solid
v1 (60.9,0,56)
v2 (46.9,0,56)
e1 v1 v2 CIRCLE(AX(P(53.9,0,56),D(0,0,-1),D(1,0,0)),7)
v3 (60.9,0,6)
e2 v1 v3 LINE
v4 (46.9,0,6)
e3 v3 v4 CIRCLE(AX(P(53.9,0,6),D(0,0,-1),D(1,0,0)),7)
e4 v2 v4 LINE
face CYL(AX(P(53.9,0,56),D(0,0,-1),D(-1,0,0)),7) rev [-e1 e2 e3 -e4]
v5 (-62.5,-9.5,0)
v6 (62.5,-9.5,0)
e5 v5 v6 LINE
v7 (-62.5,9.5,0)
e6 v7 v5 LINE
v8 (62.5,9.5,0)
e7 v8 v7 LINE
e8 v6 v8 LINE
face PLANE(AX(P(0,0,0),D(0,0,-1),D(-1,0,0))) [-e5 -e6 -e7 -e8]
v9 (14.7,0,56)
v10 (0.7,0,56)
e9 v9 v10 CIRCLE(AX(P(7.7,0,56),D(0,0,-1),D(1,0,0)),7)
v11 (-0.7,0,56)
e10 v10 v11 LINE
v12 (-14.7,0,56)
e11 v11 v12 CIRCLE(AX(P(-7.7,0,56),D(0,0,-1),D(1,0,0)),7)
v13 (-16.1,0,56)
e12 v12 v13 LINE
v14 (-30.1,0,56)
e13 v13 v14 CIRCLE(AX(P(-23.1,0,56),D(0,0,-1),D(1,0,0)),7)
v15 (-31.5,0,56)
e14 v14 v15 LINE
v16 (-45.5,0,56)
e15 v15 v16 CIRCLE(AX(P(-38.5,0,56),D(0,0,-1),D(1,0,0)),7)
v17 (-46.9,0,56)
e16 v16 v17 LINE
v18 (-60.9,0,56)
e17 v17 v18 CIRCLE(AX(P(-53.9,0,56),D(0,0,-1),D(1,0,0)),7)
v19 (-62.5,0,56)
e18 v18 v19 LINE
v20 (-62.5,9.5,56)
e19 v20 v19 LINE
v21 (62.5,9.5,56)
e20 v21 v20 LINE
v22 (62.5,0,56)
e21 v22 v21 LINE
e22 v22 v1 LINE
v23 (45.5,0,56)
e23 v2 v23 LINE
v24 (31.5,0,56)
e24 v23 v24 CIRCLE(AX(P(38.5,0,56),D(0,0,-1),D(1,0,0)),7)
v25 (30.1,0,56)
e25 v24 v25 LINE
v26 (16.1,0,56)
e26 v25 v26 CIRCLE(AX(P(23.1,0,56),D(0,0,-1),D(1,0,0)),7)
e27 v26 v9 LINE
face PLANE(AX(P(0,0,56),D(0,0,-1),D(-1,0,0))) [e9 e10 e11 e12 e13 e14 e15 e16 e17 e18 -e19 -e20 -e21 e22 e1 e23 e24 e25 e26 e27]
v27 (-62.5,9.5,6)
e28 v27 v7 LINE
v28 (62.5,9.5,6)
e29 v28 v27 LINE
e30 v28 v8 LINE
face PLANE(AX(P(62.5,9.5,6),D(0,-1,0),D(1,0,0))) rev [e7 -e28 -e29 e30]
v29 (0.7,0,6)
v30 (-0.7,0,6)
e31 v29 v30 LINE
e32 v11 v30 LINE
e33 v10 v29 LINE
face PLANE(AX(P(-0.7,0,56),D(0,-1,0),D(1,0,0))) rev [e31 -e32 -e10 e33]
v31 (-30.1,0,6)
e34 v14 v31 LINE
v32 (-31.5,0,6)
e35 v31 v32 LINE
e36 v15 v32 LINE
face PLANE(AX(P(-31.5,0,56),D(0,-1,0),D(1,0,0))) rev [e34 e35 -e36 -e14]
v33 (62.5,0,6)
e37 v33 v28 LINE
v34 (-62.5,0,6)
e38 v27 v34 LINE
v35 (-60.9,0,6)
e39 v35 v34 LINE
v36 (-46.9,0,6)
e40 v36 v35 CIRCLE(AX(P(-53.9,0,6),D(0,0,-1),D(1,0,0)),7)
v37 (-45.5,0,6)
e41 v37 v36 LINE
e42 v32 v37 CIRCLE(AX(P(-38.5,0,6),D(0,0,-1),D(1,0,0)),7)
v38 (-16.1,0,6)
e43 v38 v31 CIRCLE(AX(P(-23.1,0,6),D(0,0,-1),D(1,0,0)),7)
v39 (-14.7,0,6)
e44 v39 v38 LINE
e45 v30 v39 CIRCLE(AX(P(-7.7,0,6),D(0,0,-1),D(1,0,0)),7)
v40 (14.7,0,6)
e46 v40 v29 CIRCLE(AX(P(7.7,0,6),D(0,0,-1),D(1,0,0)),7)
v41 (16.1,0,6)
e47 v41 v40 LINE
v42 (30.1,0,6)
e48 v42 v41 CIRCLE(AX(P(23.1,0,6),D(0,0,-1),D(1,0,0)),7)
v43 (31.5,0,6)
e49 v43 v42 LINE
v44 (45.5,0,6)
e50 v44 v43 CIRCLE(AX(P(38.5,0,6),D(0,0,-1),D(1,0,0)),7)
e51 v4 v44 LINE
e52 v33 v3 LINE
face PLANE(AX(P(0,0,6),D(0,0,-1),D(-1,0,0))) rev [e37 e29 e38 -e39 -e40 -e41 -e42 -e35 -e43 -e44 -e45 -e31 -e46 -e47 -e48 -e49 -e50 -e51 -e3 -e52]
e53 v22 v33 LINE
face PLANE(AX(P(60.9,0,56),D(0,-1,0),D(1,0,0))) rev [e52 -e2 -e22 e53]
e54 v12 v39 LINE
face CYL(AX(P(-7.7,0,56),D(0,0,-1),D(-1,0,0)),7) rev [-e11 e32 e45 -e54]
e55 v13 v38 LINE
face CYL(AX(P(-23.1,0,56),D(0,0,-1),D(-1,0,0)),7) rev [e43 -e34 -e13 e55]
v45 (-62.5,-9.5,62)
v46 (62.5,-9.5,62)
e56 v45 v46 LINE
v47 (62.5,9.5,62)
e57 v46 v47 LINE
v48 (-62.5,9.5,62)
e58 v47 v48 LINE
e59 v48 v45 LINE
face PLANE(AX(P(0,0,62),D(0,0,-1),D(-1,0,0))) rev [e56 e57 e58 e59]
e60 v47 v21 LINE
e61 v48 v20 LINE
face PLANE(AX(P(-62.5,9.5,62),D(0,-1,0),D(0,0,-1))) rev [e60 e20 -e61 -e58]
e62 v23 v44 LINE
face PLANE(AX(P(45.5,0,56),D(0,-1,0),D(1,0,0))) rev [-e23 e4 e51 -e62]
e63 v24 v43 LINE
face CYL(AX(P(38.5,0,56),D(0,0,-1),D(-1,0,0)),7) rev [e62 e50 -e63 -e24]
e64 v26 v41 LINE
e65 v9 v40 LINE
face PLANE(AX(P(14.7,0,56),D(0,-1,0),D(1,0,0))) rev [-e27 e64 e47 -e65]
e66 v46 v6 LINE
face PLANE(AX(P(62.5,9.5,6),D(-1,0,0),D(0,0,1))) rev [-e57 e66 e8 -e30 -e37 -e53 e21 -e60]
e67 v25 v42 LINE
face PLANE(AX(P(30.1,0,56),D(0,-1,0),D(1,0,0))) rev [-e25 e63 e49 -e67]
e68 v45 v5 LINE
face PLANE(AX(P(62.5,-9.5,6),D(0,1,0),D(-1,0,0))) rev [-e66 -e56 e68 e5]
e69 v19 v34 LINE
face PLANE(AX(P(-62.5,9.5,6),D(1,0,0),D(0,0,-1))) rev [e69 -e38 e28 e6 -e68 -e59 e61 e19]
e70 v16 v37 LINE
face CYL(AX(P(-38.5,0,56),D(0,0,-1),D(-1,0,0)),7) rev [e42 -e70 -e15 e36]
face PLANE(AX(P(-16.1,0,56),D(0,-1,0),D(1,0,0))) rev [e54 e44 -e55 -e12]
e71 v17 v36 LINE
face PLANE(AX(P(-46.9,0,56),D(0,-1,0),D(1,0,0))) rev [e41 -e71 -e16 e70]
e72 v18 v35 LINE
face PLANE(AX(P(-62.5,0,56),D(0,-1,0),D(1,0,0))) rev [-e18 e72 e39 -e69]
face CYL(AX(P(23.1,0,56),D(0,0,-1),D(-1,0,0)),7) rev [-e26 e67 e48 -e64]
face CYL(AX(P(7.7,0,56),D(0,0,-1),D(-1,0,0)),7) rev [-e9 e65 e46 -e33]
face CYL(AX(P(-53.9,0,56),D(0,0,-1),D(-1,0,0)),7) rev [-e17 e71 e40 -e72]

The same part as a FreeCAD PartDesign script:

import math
import FreeCAD as App
import Part
import Sketcher


def add_polygon(sketch, points):
    """Adds a closed chain of lines whose ends are joined by coincident constraints."""
    first, n = sketch.GeometryCount, len(points)
    for a, b in zip(points, points[1:] + points[:1]):
        sketch.addGeometry(Part.LineSegment(App.Vector(*a, 0), App.Vector(*b, 0)), False)
    for i in range(n):
        sketch.addConstraint(Sketcher.Constraint("Coincident", first + i, 2, first + (i + 1) % n, 1))

doc = App.newDocument("Part")
body = doc.addObject("PartDesign::Body", "Body")

sketch1 = doc.addObject("Sketcher::SketchObject", "Sketch")
body.addObject(sketch1)
sketch1.AttachmentSupport = (doc.XY_Plane, [""])
sketch1.MapMode = "FlatFace"
add_polygon(sketch1, [(-62.5, 9.5), (-62.5, -9.5), (62.5, -9.5), (62.5, 9.5)])
sketch1.addConstraint(Sketcher.Constraint("Vertical", 0))
sketch1.addConstraint(Sketcher.Constraint("Horizontal", 1))
sketch1.addConstraint(Sketcher.Constraint("Vertical", 2))
sketch1.addConstraint(Sketcher.Constraint("Horizontal", 3))
sketch1.addConstraint(Sketcher.Constraint("Symmetric", 0, 2, 2, 2, -1, 1))
sketch1.addConstraint(Sketcher.Constraint("DistanceX", 1, 1, 1, 2, 125.0))
sketch1.addConstraint(Sketcher.Constraint("DistanceY", 0, 2, 0, 1, 19.0))
pad1 = doc.addObject("PartDesign::Pad", "Pad")
body.addObject(pad1)
pad1.Profile = sketch1
pad1.Length = 6

sketch2 = doc.addObject("Sketcher::SketchObject", "Sketch001")
body.addObject(sketch2)
sketch2.AttachmentSupport = (doc.XY_Plane, [""])
sketch2.MapMode = "FlatFace"
sketch2.AttachmentOffset = App.Placement(App.Vector(0, 0, 6), App.Rotation())
sketch2.addGeometry(Part.LineSegment(App.Vector(-60.9, 0, 0), App.Vector(-62.5, 0, 0)), False)
sketch2.addGeometry(Part.LineSegment(App.Vector(-62.5, 0, 0), App.Vector(-62.5, -9.5, 0)), False)
sketch2.addGeometry(Part.LineSegment(App.Vector(-62.5, -9.5, 0), App.Vector(62.5, -9.5, 0)), False)
sketch2.addGeometry(Part.LineSegment(App.Vector(62.5, -9.5, 0), App.Vector(62.5, 0, 0)), False)
sketch2.addGeometry(Part.LineSegment(App.Vector(62.5, 0, 0), App.Vector(60.9, 0, 0)), False)
sketch2.addGeometry(Part.ArcOfCircle(Part.Circle(App.Vector(53.9, 0, 0), App.Vector(0, 0, 1), 7), math.radians(180), math.radians(360)), False)
sketch2.addGeometry(Part.LineSegment(App.Vector(46.9, 0, 0), App.Vector(45.5, 0, 0)), False)
sketch2.addGeometry(Part.ArcOfCircle(Part.Circle(App.Vector(38.5, 0, 0), App.Vector(0, 0, 1), 7), math.radians(180), math.radians(360)), False)
sketch2.addGeometry(Part.LineSegment(App.Vector(31.5, 0, 0), App.Vector(30.1, 0, 0)), False)
sketch2.addGeometry(Part.ArcOfCircle(Part.Circle(App.Vector(23.1, 0, 0), App.Vector(0, 0, 1), 7), math.radians(180), math.radians(360)), False)
sketch2.addGeometry(Part.LineSegment(App.Vector(16.1, 0, 0), App.Vector(14.7, 0, 0)), False)
sketch2.addGeometry(Part.ArcOfCircle(Part.Circle(App.Vector(7.7, 0, 0), App.Vector(0, 0, 1), 7), math.radians(180), math.radians(360)), False)
sketch2.addGeometry(Part.LineSegment(App.Vector(0.7, 0, 0), App.Vector(-0.7, 0, 0)), False)
sketch2.addGeometry(Part.ArcOfCircle(Part.Circle(App.Vector(-7.7, 0, 0), App.Vector(0, 0, 1), 7), math.radians(180), math.radians(360)), False)
sketch2.addGeometry(Part.LineSegment(App.Vector(-14.7, 0, 0), App.Vector(-16.1, 0, 0)), False)
sketch2.addGeometry(Part.ArcOfCircle(Part.Circle(App.Vector(-23.1, 0, 0), App.Vector(0, 0, 1), 7), math.radians(180), math.radians(360)), False)
sketch2.addGeometry(Part.LineSegment(App.Vector(-30.1, 0, 0), App.Vector(-31.5, 0, 0)), False)
sketch2.addGeometry(Part.ArcOfCircle(Part.Circle(App.Vector(-38.5, 0, 0), App.Vector(0, 0, 1), 7), math.radians(180), math.radians(360)), False)
sketch2.addGeometry(Part.LineSegment(App.Vector(-45.5, 0, 0), App.Vector(-46.9, 0, 0)), False)
sketch2.addGeometry(Part.ArcOfCircle(Part.Circle(App.Vector(-53.9, 0, 0), App.Vector(0, 0, 1), 7), math.radians(180), math.radians(360)), False)
sketch2.addConstraint(Sketcher.Constraint("Coincident", 0, 2, 1, 1))
sketch2.addConstraint(Sketcher.Constraint("Coincident", 1, 2, 2, 1))
sketch2.addConstraint(Sketcher.Constraint("Coincident", 2, 2, 3, 1))
sketch2.addConstraint(Sketcher.Constraint("Coincident", 3, 2, 4, 1))
sketch2.addConstraint(Sketcher.Constraint("Coincident", 4, 2, 5, 2))
sketch2.addConstraint(Sketcher.Constraint("Coincident", 5, 1, 6, 1))
sketch2.addConstraint(Sketcher.Constraint("Coincident", 6, 2, 7, 2))
sketch2.addConstraint(Sketcher.Constraint("Coincident", 7, 1, 8, 1))
sketch2.addConstraint(Sketcher.Constraint("Coincident", 8, 2, 9, 2))
sketch2.addConstraint(Sketcher.Constraint("Coincident", 9, 1, 10, 1))
sketch2.addConstraint(Sketcher.Constraint("Coincident", 10, 2, 11, 2))
sketch2.addConstraint(Sketcher.Constraint("Coincident", 11, 1, 12, 1))
sketch2.addConstraint(Sketcher.Constraint("Coincident", 12, 2, 13, 2))
sketch2.addConstraint(Sketcher.Constraint("Coincident", 13, 1, 14, 1))
sketch2.addConstraint(Sketcher.Constraint("Coincident", 14, 2, 15, 2))
sketch2.addConstraint(Sketcher.Constraint("Coincident", 15, 1, 16, 1))
sketch2.addConstraint(Sketcher.Constraint("Coincident", 16, 2, 17, 2))
sketch2.addConstraint(Sketcher.Constraint("Coincident", 17, 1, 18, 1))
sketch2.addConstraint(Sketcher.Constraint("Coincident", 18, 2, 19, 2))
sketch2.addConstraint(Sketcher.Constraint("Coincident", 19, 1, 0, 1))
sketch2.addConstraint(Sketcher.Constraint("Horizontal", 0))
sketch2.addConstraint(Sketcher.Constraint("Vertical", 1))
sketch2.addConstraint(Sketcher.Constraint("Horizontal", 2))
sketch2.addConstraint(Sketcher.Constraint("Vertical", 3))
sketch2.addConstraint(Sketcher.Constraint("Horizontal", 4))
sketch2.addConstraint(Sketcher.Constraint("Horizontal", 6))
sketch2.addConstraint(Sketcher.Constraint("Horizontal", 8))
sketch2.addConstraint(Sketcher.Constraint("Horizontal", 10))
sketch2.addConstraint(Sketcher.Constraint("Horizontal", 12))
sketch2.addConstraint(Sketcher.Constraint("Horizontal", 14))
sketch2.addConstraint(Sketcher.Constraint("Horizontal", 16))
sketch2.addConstraint(Sketcher.Constraint("Horizontal", 18))
sketch2.addConstraint(Sketcher.Constraint("Equal", 5, 7))
sketch2.addConstraint(Sketcher.Constraint("Equal", 7, 9))
sketch2.addConstraint(Sketcher.Constraint("Equal", 9, 11))
sketch2.addConstraint(Sketcher.Constraint("Equal", 11, 13))
sketch2.addConstraint(Sketcher.Constraint("Equal", 13, 15))
sketch2.addConstraint(Sketcher.Constraint("Equal", 15, 17))
sketch2.addConstraint(Sketcher.Constraint("Equal", 17, 19))
sketch2.addConstraint(Sketcher.Constraint("Symmetric", 11, 3, 13, 3, -1, 1))
sketch2.addConstraint(Sketcher.Constraint("Symmetric", 9, 3, 15, 3, -1, 1))
sketch2.addConstraint(Sketcher.Constraint("Symmetric", 7, 3, 17, 3, -1, 1))
sketch2.addConstraint(Sketcher.Constraint("Symmetric", 5, 3, 19, 3, -1, 1))
sketch2.addConstraint(Sketcher.Constraint("Symmetric", 0, 2, 3, 2, -1, 1))
sketch2.addConstraint(Sketcher.Constraint("PointOnObject", 5, 3, -1))
sketch2.addConstraint(Sketcher.Constraint("PointOnObject", 7, 3, -1))
sketch2.addConstraint(Sketcher.Constraint("PointOnObject", 9, 3, -1))
sketch2.addConstraint(Sketcher.Constraint("PointOnObject", 11, 3, -1))
sketch2.addConstraint(Sketcher.Constraint("PointOnObject", 0, 2, -1))
sketch2.addConstraint(Sketcher.Constraint("PointOnObject", 5, 1, -1))
sketch2.addConstraint(Sketcher.Constraint("PointOnObject", 7, 1, -1))
sketch2.addConstraint(Sketcher.Constraint("PointOnObject", 9, 1, -1))
sketch2.addConstraint(Sketcher.Constraint("PointOnObject", 11, 1, -1))
sketch2.addConstraint(Sketcher.Constraint("PointOnObject", 13, 1, -1))
sketch2.addConstraint(Sketcher.Constraint("PointOnObject", 15, 1, -1))
sketch2.addConstraint(Sketcher.Constraint("PointOnObject", 17, 1, -1))
sketch2.addConstraint(Sketcher.Constraint("Equal", 6, 8))
sketch2.addConstraint(Sketcher.Constraint("Equal", 8, 10))
sketch2.addConstraint(Sketcher.Constraint("Equal", 10, 12))
sketch2.addConstraint(Sketcher.Constraint("Radius", 5, 7.0))
sketch2.addConstraint(Sketcher.Constraint("DistanceX", 2, 1, 2, 2, 125.0))
sketch2.addConstraint(Sketcher.Constraint("DistanceX", 0, 2, 0, 1, 1.6))
sketch2.addConstraint(Sketcher.Constraint("DistanceY", 1, 2, 1, 1, 9.5))
pad2 = doc.addObject("PartDesign::Pad", "Pad001")
body.addObject(pad2)
pad2.Profile = sketch2
pad2.Length = 50

sketch3 = doc.addObject("Sketcher::SketchObject", "Sketch002")
body.addObject(sketch3)
sketch3.AttachmentSupport = (doc.XY_Plane, [""])
sketch3.MapMode = "FlatFace"
sketch3.AttachmentOffset = App.Placement(App.Vector(0, 0, 56), App.Rotation())
add_polygon(sketch3, [(-62.5, 9.5), (-62.5, -9.5), (62.5, -9.5), (62.5, 9.5)])
sketch3.addConstraint(Sketcher.Constraint("Vertical", 0))
sketch3.addConstraint(Sketcher.Constraint("Horizontal", 1))
sketch3.addConstraint(Sketcher.Constraint("Vertical", 2))
sketch3.addConstraint(Sketcher.Constraint("Horizontal", 3))
sketch3.addConstraint(Sketcher.Constraint("Symmetric", 0, 2, 2, 2, -1, 1))
sketch3.addConstraint(Sketcher.Constraint("DistanceX", 1, 1, 1, 2, 125.0))
sketch3.addConstraint(Sketcher.Constraint("DistanceY", 0, 2, 0, 1, 19.0))
pad3 = doc.addObject("PartDesign::Pad", "Pad002")
body.addObject(pad3)
pad3.Profile = sketch3
pad3.Length = 6

doc.recompute()
